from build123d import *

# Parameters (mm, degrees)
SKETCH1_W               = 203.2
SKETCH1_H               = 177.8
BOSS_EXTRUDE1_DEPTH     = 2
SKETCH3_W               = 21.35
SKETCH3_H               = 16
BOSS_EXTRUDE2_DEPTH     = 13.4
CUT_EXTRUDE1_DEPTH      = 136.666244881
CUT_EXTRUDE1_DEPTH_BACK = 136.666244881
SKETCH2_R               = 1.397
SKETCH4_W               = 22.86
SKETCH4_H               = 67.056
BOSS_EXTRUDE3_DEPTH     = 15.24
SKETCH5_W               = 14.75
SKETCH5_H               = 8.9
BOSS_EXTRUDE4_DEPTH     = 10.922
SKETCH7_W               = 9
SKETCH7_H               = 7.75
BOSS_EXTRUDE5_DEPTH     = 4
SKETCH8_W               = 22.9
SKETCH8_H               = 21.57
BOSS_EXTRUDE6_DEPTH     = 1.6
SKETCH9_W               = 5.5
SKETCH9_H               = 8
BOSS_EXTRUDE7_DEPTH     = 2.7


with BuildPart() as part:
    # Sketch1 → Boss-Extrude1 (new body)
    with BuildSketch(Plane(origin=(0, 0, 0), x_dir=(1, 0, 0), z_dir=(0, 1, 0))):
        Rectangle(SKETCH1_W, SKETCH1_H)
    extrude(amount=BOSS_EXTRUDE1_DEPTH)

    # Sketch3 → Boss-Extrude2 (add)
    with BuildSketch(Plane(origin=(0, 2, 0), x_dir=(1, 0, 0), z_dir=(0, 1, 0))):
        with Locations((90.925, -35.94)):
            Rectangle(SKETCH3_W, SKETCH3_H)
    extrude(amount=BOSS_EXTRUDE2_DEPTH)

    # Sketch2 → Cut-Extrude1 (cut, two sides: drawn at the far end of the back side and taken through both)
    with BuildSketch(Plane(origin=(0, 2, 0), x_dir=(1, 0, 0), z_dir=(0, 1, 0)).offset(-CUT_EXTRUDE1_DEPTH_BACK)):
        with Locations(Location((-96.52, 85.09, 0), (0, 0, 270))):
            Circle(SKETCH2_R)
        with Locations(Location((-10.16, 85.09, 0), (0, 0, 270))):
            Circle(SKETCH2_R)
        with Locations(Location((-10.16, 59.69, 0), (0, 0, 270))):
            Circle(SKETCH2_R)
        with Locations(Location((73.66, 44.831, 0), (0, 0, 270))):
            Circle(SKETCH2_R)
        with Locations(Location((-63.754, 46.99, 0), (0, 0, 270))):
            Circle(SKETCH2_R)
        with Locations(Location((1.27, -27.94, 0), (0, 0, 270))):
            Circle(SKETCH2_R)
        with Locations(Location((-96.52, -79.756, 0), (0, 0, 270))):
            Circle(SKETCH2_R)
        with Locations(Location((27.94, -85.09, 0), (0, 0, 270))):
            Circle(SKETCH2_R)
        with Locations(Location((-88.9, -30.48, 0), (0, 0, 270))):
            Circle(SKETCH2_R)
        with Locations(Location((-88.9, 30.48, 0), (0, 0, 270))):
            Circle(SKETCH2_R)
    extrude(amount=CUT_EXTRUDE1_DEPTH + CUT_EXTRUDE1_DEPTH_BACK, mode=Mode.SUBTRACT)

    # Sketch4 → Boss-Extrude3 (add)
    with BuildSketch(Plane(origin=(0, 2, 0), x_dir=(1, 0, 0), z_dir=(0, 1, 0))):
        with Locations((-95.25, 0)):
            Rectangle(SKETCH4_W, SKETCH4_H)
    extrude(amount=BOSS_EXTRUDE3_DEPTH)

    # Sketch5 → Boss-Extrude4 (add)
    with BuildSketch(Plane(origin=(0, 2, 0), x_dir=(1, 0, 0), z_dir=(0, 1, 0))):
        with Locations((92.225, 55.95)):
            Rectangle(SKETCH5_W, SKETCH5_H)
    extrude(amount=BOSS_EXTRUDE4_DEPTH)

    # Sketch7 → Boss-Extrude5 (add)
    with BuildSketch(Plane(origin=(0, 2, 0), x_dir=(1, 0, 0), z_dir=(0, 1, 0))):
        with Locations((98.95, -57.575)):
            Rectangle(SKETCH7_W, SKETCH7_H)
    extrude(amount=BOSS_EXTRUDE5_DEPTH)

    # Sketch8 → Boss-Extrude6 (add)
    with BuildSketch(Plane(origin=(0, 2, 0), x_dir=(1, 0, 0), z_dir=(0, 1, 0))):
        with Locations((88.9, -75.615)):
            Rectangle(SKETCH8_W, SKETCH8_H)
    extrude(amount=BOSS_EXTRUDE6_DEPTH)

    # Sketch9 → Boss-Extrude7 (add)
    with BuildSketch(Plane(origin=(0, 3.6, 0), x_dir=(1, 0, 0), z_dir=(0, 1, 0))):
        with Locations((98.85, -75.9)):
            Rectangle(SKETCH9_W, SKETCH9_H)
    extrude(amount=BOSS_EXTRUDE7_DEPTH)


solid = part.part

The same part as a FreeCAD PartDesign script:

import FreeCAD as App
import Part
import Sketcher
Q = App.Units.Quantity

doc = App.newDocument("Part")
body = doc.addObject("PartDesign::Body", "Body")

# Sketch on XZ plane
sketch1 = doc.addObject("Sketcher::SketchObject", "Sketch")
body.addObject(sketch1)
sketch1.AttachmentSupport = (doc.XZ_Plane, [""])
sketch1.MapMode = "FlatFace"
sketch1.addGeometry(Part.LineSegment(App.Vector(-101.6, -88.9, 0), App.Vector(-101.6, 88.9, 0)), False)
sketch1.addGeometry(Part.LineSegment(App.Vector(-101.6, 88.9, 0), App.Vector(101.6, 88.9, 0)), False)
sketch1.addGeometry(Part.LineSegment(App.Vector(101.6, 88.9, 0), App.Vector(101.6, -88.9, 0)), False)
sketch1.addGeometry(Part.LineSegment(App.Vector(101.6, -88.9, 0), App.Vector(-101.6, -88.9, 0)), False)
sketch1.addConstraint(Sketcher.Constraint("Coincident", 0, 2, 1, 1))
sketch1.addConstraint(Sketcher.Constraint("Coincident", 1, 2, 2, 1))
sketch1.addConstraint(Sketcher.Constraint("Coincident", 2, 2, 3, 1))
sketch1.addConstraint(Sketcher.Constraint("Coincident", 3, 2, 0, 1))
sketch1.addConstraint(Sketcher.Constraint("Vertical", 0))
sketch1.addConstraint(Sketcher.Constraint("Horizontal", 1))
sketch1.addConstraint(Sketcher.Constraint("Vertical", 2))
sketch1.addConstraint(Sketcher.Constraint("Horizontal", 3))
sketch1.addConstraint(Sketcher.Constraint("Symmetric", 0, 2, 2, 2, -1, 1))
sketch1.addConstraint(Sketcher.Constraint("DistanceX", 1, 1, 1, 2, Q("203.2 mm")))
sketch1.addConstraint(Sketcher.Constraint("DistanceY", 0, 1, 0, 2, Q("177.8 mm")))
pad1 = doc.addObject("PartDesign::Pad", "Pad")
body.addObject(pad1)
pad1.Profile = sketch1
pad1.Length = 2
pad1.Reversed = True

# Sketch on XZ plane
sketch2 = doc.addObject("Sketcher::SketchObject", "Sketch001")
body.addObject(sketch2)
sketch2.AttachmentSupport = (doc.XZ_Plane, [""])
sketch2.MapMode = "FlatFace"
sketch2.AttachmentOffset = App.Placement(App.Vector(0, 0, -2), App.Rotation())
sketch2.addGeometry(Part.LineSegment(App.Vector(80.25, 27.94, 0), App.Vector(80.25, 43.94, 0)), False)
sketch2.addGeometry(Part.LineSegment(App.Vector(80.25, 43.94, 0), App.Vector(101.6, 43.94, 0)), False)
sketch2.addGeometry(Part.LineSegment(App.Vector(101.6, 43.94, 0), App.Vector(101.6, 27.94, 0)), False)
sketch2.addGeometry(Part.LineSegment(App.Vector(101.6, 27.94, 0), App.Vector(80.25, 27.94, 0)), False)
sketch2.addConstraint(Sketcher.Constraint("Coincident", 0, 2, 1, 1))
sketch2.addConstraint(Sketcher.Constraint("Coincident", 1, 2, 2, 1))
sketch2.addConstraint(Sketcher.Constraint("Coincident", 2, 2, 3, 1))
sketch2.addConstraint(Sketcher.Constraint("Coincident", 3, 2, 0, 1))
sketch2.addConstraint(Sketcher.Constraint("Vertical", 0))
sketch2.addConstraint(Sketcher.Constraint("Horizontal", 1))
sketch2.addConstraint(Sketcher.Constraint("Vertical", 2))
sketch2.addConstraint(Sketcher.Constraint("Horizontal", 3))
sketch2.addConstraint(Sketcher.Constraint("DistanceY", 0, 1, 0, 2, Q("16 mm")))
sketch2.addConstraint(Sketcher.Constraint("DistanceX", 1, 1, 1, 2, Q("21.35 mm")))
sketch2.addConstraint(Sketcher.Constraint("DistanceX", -1, 1, 1, 2, Q("101.6 mm")))
sketch2.addConstraint(Sketcher.Constraint("DistanceY", -1, 1, 0, 2, Q("43.94 mm")))
pad2 = doc.addObject("PartDesign::Pad", "Pad001")
body.addObject(pad2)
pad2.Profile = sketch2
pad2.Length = 13.4
pad2.Reversed = True

# Sketch on XZ plane
sketch3 = doc.addObject("Sketcher::SketchObject", "Sketch002")
body.addObject(sketch3)
sketch3.AttachmentSupport = (doc.XZ_Plane, [""])
sketch3.MapMode = "FlatFace"
sketch3.AttachmentOffset = App.Placement(App.Vector(0, 0, -2), App.Rotation())
sketch3.addGeometry(Part.Circle(App.Vector(-96.52, -85.09, 0), App.Vector(0, 0, 1), 1.397), False)
sketch3.addGeometry(Part.Circle(App.Vector(-10.16, -85.09, 0), App.Vector(0, 0, 1), 1.397), False)
sketch3.addGeometry(Part.Circle(App.Vector(-10.16, -59.69, 0), App.Vector(0, 0, 1), 1.397), False)
sketch3.addGeometry(Part.Circle(App.Vector(73.66, -44.831, 0), App.Vector(0, 0, 1), 1.397), False)
sketch3.addGeometry(Part.Circle(App.Vector(-63.754, -46.99, 0), App.Vector(0, 0, 1), 1.397), False)
sketch3.addGeometry(Part.Circle(App.Vector(1.27, 27.94, 0), App.Vector(0, 0, 1), 1.397), False)
sketch3.addGeometry(Part.Circle(App.Vector(-96.52, 79.756, 0), App.Vector(0, 0, 1), 1.397), False)
sketch3.addGeometry(Part.Circle(App.Vector(27.94, 85.09, 0), App.Vector(0, 0, 1), 1.397), False)
sketch3.addGeometry(Part.Circle(App.Vector(-88.9, 30.48, 0), App.Vector(0, 0, 1), 1.397), False)
sketch3.addGeometry(Part.Circle(App.Vector(-88.9, -30.48, 0), App.Vector(0, 0, 1), 1.397), False)
sketch3.addConstraint(Sketcher.Constraint("Equal", 0, 1))
sketch3.addConstraint(Sketcher.Constraint("Equal", 1, 2))
sketch3.addConstraint(Sketcher.Constraint("Equal", 2, 3))
sketch3.addConstraint(Sketcher.Constraint("Equal", 3, 4))
sketch3.addConstraint(Sketcher.Constraint("Equal", 4, 5))
sketch3.addConstraint(Sketcher.Constraint("Equal", 5, 6))
sketch3.addConstraint(Sketcher.Constraint("Equal", 6, 7))
sketch3.addConstraint(Sketcher.Constraint("Equal", 7, 8))
sketch3.addConstraint(Sketcher.Constraint("Equal", 8, 9))
sketch3.addConstraint(Sketcher.Constraint("Symmetric", 8, 3, 9, 3, -1))
sketch3.addConstraint(Sketcher.Constraint("Horizontal", 0, 3, 1, 3))
sketch3.addConstraint(Sketcher.Constraint("Vertical", 1, 3, 2, 3))
sketch3.addConstraint(Sketcher.Constraint("Vertical", 0, 3, 6, 3))
sketch3.addConstraint(Sketcher.Constraint("Diameter", 0, Q("2.794 mm")))
sketch3.addConstraint(Sketcher.Constraint("DistanceX", 8, 3, -1, 1, Q("88.9 mm")))
sketch3.addConstraint(Sketcher.Constraint("DistanceY", 1, 3, 2, 3, Q("25.4 mm")))
sketch3.addConstraint(Sketcher.Constraint("DistanceY", 0, 3, 4, 3, Q("38.1 mm")))
sketch3.addConstraint(Sketcher.Constraint("DistanceX", 2, 3, 7, 3, Q("38.1 mm")))
sketch3.addConstraint(Sketcher.Constraint("DistanceX", 0, 3, -1, 1, Q("96.52 mm")))
sketch3.addConstraint(Sketcher.Constraint("DistanceY", 0, 3, -1, 1, Q("85.09 mm")))
sketch3.addConstraint(Sketcher.Constraint("DistanceX", 1, 3, -1, 1, Q("10.16 mm")))
sketch3.addConstraint(Sketcher.Constraint("DistanceX", -1, 1, 3, 3, Q("73.66 mm")))
sketch3.addConstraint(Sketcher.Constraint("DistanceX", -1, 1, 5, 3, Q("1.27 mm")))
sketch3.addConstraint(Sketcher.Constraint("DistanceY", -1, 1, 5, 3, Q("27.94 mm")))
sketch3.addConstraint(Sketcher.Constraint("DistanceY", -1, 1, 7, 3, Q("85.09 mm")))
sketch3.addConstraint(Sketcher.Constraint("DistanceY", -1, 1, 8, 3, Q("30.48 mm")))
sketch3.addConstraint(Sketcher.Constraint("DistanceY", 3, 3, -1, 1, Q("44.831 mm")))
sketch3.addConstraint(Sketcher.Constraint("DistanceX", 4, 3, -1, 1, Q("63.754 mm")))
sketch3.addConstraint(Sketcher.Constraint("DistanceY", -1, 1, 6, 3, Q("79.756 mm")))
pocket1 = doc.addObject("PartDesign::Pocket", "Pocket")
body.addObject(pocket1)
pocket1.Profile = sketch3
pocket1.Type = "ThroughAll"
pocket1.Midplane = True

# Sketch on XZ plane
sketch4 = doc.addObject("Sketcher::SketchObject", "Sketch003")
body.addObject(sketch4)
sketch4.AttachmentSupport = (doc.XZ_Plane, [""])
sketch4.MapMode = "FlatFace"
sketch4.AttachmentOffset = App.Placement(App.Vector(0, 0, -2), App.Rotation())
sketch4.addGeometry(Part.LineSegment(App.Vector(-106.68, -33.528, 0), App.Vector(-106.68, 33.528, 0)), False)
sketch4.addGeometry(Part.LineSegment(App.Vector(-106.68, 33.528, 0), App.Vector(-83.82, 33.528, 0)), False)
sketch4.addGeometry(Part.LineSegment(App.Vector(-83.82, 33.528, 0), App.Vector(-83.82, -33.528, 0)), False)
sketch4.addGeometry(Part.LineSegment(App.Vector(-83.82, -33.528, 0), App.Vector(-106.68, -33.528, 0)), False)
sketch4.addConstraint(Sketcher.Constraint("Coincident", 0, 2, 1, 1))
sketch4.addConstraint(Sketcher.Constraint("Coincident", 1, 2, 2, 1))
sketch4.addConstraint(Sketcher.Constraint("Coincident", 2, 2, 3, 1))
sketch4.addConstraint(Sketcher.Constraint("Coincident", 3, 2, 0, 1))
sketch4.addConstraint(Sketcher.Constraint("Vertical", 0))
sketch4.addConstraint(Sketcher.Constraint("Horizontal", 1))
sketch4.addConstraint(Sketcher.Constraint("Vertical", 2))
sketch4.addConstraint(Sketcher.Constraint("Horizontal", 3))
sketch4.addConstraint(Sketcher.Constraint("DistanceX", 1, 1, 1, 2, Q("22.86 mm")))
sketch4.addConstraint(Sketcher.Constraint("DistanceY", 0, 1, 0, 2, Q("67.056 mm")))
sketch4.addConstraint(Sketcher.Constraint("DistanceX", 0, 2, -1, 1, Q("106.68 mm")))
sketch4.addConstraint(Sketcher.Constraint("DistanceY", -1, 1, 0, 2, Q("33.528 mm")))
pad3 = doc.addObject("PartDesign::Pad", "Pad002")
body.addObject(pad3)
pad3.Profile = sketch4
pad3.Length = 15.24
pad3.Reversed = True

# Sketch on XZ plane
sketch5 = doc.addObject("Sketcher::SketchObject", "Sketch004")
body.addObject(sketch5)
sketch5.AttachmentSupport = (doc.XZ_Plane, [""])
sketch5.MapMode = "FlatFace"
sketch5.AttachmentOffset = App.Placement(App.Vector(0, 0, -2), App.Rotation())
sketch5.addGeometry(Part.LineSegment(App.Vector(84.85, -60.4, 0), App.Vector(84.85, -51.5, 0)), False)
sketch5.addGeometry(Part.LineSegment(App.Vector(84.85, -51.5, 0), App.Vector(99.6, -51.5, 0)), False)
sketch5.addGeometry(Part.LineSegment(App.Vector(99.6, -51.5, 0), App.Vector(99.6, -60.4, 0)), False)
sketch5.addGeometry(Part.LineSegment(App.Vector(99.6, -60.4, 0), App.Vector(84.85, -60.4, 0)), False)
sketch5.addConstraint(Sketcher.Constraint("Coincident", 0, 2, 1, 1))
sketch5.addConstraint(Sketcher.Constraint("Coincident", 1, 2, 2, 1))
sketch5.addConstraint(Sketcher.Constraint("Coincident", 2, 2, 3, 1))
sketch5.addConstraint(Sketcher.Constraint("Coincident", 3, 2, 0, 1))
sketch5.addConstraint(Sketcher.Constraint("Vertical", 0))
sketch5.addConstraint(Sketcher.Constraint("Horizontal", 1))
sketch5.addConstraint(Sketcher.Constraint("Vertical", 2))
sketch5.addConstraint(Sketcher.Constraint("Horizontal", 3))
sketch5.addConstraint(Sketcher.Constraint("DistanceY", 0, 1, 0, 2, Q("8.9 mm")))
sketch5.addConstraint(Sketcher.Constraint("DistanceX", 1, 1, 1, 2, Q("14.75 mm")))
sketch5.addConstraint(Sketcher.Constraint("DistanceY", 0, 2, -1, 1, Q("51.5 mm")))
sketch5.addConstraint(Sketcher.Constraint("DistanceX", -1, 1, 1, 2, Q("99.6 mm")))
pad4 = doc.addObject("PartDesign::Pad", "Pad003")
body.addObject(pad4)
pad4.Profile = sketch5
pad4.Length = 10.922
pad4.Reversed = True

# Sketch on XZ plane
sketch6 = doc.addObject("Sketcher::SketchObject", "Sketch005")
body.addObject(sketch6)
sketch6.AttachmentSupport = (doc.XZ_Plane, [""])
sketch6.MapMode = "FlatFace"
sketch6.AttachmentOffset = App.Placement(App.Vector(0, 0, -2), App.Rotation())
sketch6.addGeometry(Part.LineSegment(App.Vector(94.45, 53.7, 0), App.Vector(94.45, 61.45, 0)), False)
sketch6.addGeometry(Part.LineSegment(App.Vector(94.45, 61.45, 0), App.Vector(103.45, 61.45, 0)), False)
sketch6.addGeometry(Part.LineSegment(App.Vector(103.45, 61.45, 0), App.Vector(103.45, 53.7, 0)), False)
sketch6.addGeometry(Part.LineSegment(App.Vector(103.45, 53.7, 0), App.Vector(94.45, 53.7, 0)), False)
sketch6.addConstraint(Sketcher.Constraint("Coincident", 0, 2, 1, 1))
sketch6.addConstraint(Sketcher.Constraint("Coincident", 1, 2, 2, 1))
sketch6.addConstraint(Sketcher.Constraint("Coincident", 2, 2, 3, 1))
sketch6.addConstraint(Sketcher.Constraint("Coincident", 3, 2, 0, 1))
sketch6.addConstraint(Sketcher.Constraint("Vertical", 0))
sketch6.addConstraint(Sketcher.Constraint("Horizontal", 1))
sketch6.addConstraint(Sketcher.Constraint("Vertical", 2))
sketch6.addConstraint(Sketcher.Constraint("Horizontal", 3))
sketch6.addConstraint(Sketcher.Constraint("DistanceX", 1, 1, 1, 2, Q("9 mm")))
sketch6.addConstraint(Sketcher.Constraint("DistanceY", 0, 1, 0, 2, Q("7.75 mm")))
sketch6.addConstraint(Sketcher.Constraint("DistanceY", -1, 1, 2, 2, Q("53.7 mm")))
sketch6.addConstraint(Sketcher.Constraint("DistanceX", -1, 1, 0, 2, Q("94.45 mm")))
pad5 = doc.addObject("PartDesign::Pad", "Pad004")
body.addObject(pad5)
pad5.Profile = sketch6
pad5.Length = 4
pad5.Reversed = True

# Sketch on XZ plane
sketch7 = doc.addObject("Sketcher::SketchObject", "Sketch006")
body.addObject(sketch7)
sketch7.AttachmentSupport = (doc.XZ_Plane, [""])
sketch7.MapMode = "FlatFace"
sketch7.AttachmentOffset = App.Placement(App.Vector(0, 0, -2), App.Rotation())
sketch7.addGeometry(Part.LineSegment(App.Vector(77.45, 64.83, 0), App.Vector(77.45, 86.4, 0)), False)
sketch7.addGeometry(Part.LineSegment(App.Vector(77.45, 86.4, 0), App.Vector(100.35, 86.4, 0)), False)
sketch7.addGeometry(Part.LineSegment(App.Vector(100.35, 86.4, 0), App.Vector(100.35, 64.83, 0)), False)
sketch7.addGeometry(Part.LineSegment(App.Vector(100.35, 64.83, 0), App.Vector(77.45, 64.83, 0)), False)
sketch7.addConstraint(Sketcher.Constraint("Coincident", 0, 2, 1, 1))
sketch7.addConstraint(Sketcher.Constraint("Coincident", 1, 2, 2, 1))
sketch7.addConstraint(Sketcher.Constraint("Coincident", 2, 2, 3, 1))
sketch7.addConstraint(Sketcher.Constraint("Coincident", 3, 2, 0, 1))
sketch7.addConstraint(Sketcher.Constraint("Vertical", 0))
sketch7.addConstraint(Sketcher.Constraint("Horizontal", 1))
sketch7.addConstraint(Sketcher.Constraint("Vertical", 2))
sketch7.addConstraint(Sketcher.Constraint("Horizontal", 3))
sketch7.addConstraint(Sketcher.Constraint("DistanceX", 1, 1, 1, 2, Q("22.9 mm")))
sketch7.addConstraint(Sketcher.Constraint("DistanceY", 0, 1, 0, 2, Q("21.57 mm")))
sketch7.addConstraint(Sketcher.Constraint("DistanceY", -1, 1, 0, 2, Q("86.4 mm")))
sketch7.addConstraint(Sketcher.Constraint("DistanceX", -1, 1, 0, 2, Q("77.45 mm")))
pad6 = doc.addObject("PartDesign::Pad", "Pad005")
body.addObject(pad6)
pad6.Profile = sketch7
pad6.Length = 1.6
pad6.Reversed = True

# Sketch on XZ plane
sketch8 = doc.addObject("Sketcher::SketchObject", "Sketch007")
body.addObject(sketch8)
sketch8.AttachmentSupport = (doc.XZ_Plane, [""])
sketch8.MapMode = "FlatFace"
sketch8.AttachmentOffset = App.Placement(App.Vector(0, 0, -3.6), App.Rotation())
sketch8.addGeometry(Part.LineSegment(App.Vector(96.1, 71.9, 0), App.Vector(96.1, 79.9, 0)), False)
sketch8.addGeometry(Part.LineSegment(App.Vector(96.1, 79.9, 0), App.Vector(101.6, 79.9, 0)), False)
sketch8.addGeometry(Part.LineSegment(App.Vector(101.6, 79.9, 0), App.Vector(101.6, 71.9, 0)), False)
sketch8.addGeometry(Part.LineSegment(App.Vector(101.6, 71.9, 0), App.Vector(96.1, 71.9, 0)), False)
sketch8.addConstraint(Sketcher.Constraint("Coincident", 0, 2, 1, 1))
sketch8.addConstraint(Sketcher.Constraint("Coincident", 1, 2, 2, 1))
sketch8.addConstraint(Sketcher.Constraint("Coincident", 2, 2, 3, 1))
sketch8.addConstraint(Sketcher.Constraint("Coincident", 3, 2, 0, 1))
sketch8.addConstraint(Sketcher.Constraint("Vertical", 0))
sketch8.addConstraint(Sketcher.Constraint("Horizontal", 1))
sketch8.addConstraint(Sketcher.Constraint("Vertical", 2))
sketch8.addConstraint(Sketcher.Constraint("Horizontal", 3))
sketch8.addConstraint(Sketcher.Constraint("DistanceY", 0, 1, 0, 2, Q("8 mm")))
sketch8.addConstraint(Sketcher.Constraint("DistanceX", 1, 1, 1, 2, Q("5.5 mm")))
sketch8.addConstraint(Sketcher.Constraint("DistanceX", -1, 1, 0, 2, Q("96.1 mm")))
sketch8.addConstraint(Sketcher.Constraint("DistanceY", -1, 1, 0, 2, Q("79.9 mm")))
pad7 = doc.addObject("PartDesign::Pad", "Pad006")
body.addObject(pad7)
pad7.Profile = sketch8
pad7.Length = 2.7
pad7.Reversed = True

doc.recompute()
